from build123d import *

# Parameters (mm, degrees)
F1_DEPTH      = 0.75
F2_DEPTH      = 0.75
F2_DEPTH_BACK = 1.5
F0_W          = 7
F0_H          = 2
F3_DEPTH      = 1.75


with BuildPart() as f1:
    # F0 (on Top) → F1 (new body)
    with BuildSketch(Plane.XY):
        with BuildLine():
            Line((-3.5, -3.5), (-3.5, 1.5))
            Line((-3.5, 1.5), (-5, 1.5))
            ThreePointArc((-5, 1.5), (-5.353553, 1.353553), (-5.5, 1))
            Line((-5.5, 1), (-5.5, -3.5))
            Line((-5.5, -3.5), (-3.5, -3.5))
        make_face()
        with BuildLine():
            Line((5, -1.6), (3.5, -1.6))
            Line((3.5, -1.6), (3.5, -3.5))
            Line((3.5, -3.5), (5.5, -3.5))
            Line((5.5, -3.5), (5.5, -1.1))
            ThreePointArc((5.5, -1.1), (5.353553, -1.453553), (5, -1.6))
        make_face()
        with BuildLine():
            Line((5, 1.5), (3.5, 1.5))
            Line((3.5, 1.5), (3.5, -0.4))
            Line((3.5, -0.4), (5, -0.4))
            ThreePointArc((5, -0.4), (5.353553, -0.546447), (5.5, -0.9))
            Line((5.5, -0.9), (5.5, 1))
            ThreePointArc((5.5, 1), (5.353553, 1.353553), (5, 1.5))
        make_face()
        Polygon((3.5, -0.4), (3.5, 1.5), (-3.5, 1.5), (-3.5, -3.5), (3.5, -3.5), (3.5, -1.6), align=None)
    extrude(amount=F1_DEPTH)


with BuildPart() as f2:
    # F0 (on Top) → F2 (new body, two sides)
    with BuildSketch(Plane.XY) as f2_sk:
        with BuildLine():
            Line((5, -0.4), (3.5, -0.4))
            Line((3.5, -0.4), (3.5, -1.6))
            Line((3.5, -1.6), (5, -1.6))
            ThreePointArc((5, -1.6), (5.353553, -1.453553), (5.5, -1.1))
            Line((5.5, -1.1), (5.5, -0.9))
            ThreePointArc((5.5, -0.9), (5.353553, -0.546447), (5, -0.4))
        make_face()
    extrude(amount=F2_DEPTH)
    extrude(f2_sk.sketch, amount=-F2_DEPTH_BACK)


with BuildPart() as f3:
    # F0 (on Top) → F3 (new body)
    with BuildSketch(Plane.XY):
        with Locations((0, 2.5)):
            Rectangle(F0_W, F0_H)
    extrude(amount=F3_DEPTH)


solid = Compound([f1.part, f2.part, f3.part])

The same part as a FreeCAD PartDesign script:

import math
import FreeCAD as App
import Part
import Sketcher
from FreeCAD import Vector

doc = App.newDocument("Part")
body = doc.addObject("PartDesign::Body", "Body")

# Sketch on XY plane
sketch1 = body.newObject("Sketcher::SketchObject", "Sketch")
sketch1.AttachmentSupport = (doc.getObject("XY_Plane"), [""])
sketch1.MapMode = "FlatFace"
sketch1.addGeometry([
    Part.ArcOfCircle(Part.Circle(Vector(-5, 1, 0), Vector(0, 0, 1), 0.5), math.radians(90), math.radians(180)),  # 0
    Part.LineSegment(Vector(-5.5, 1, 0), Vector(-5.5, -3.5, 0)),  # 1
    Part.LineSegment(Vector(-5.5, -3.5, 0), Vector(5.5, -3.5, 0)),  # 2
    Part.LineSegment(Vector(5.5, -3.5, 0), Vector(5.5, -1.1, 0)),  # 3
    Part.ArcOfCircle(Part.Circle(Vector(5, -1.1, 0), Vector(0, 0, 1), 0.5), math.radians(-90), math.radians(0)),  # 4
    Part.LineSegment(Vector(5, -1.6, 0), Vector(3.5, -1.6, 0)),  # 5
    Part.LineSegment(Vector(3.5, -1.6, 0), Vector(3.5, -0.4, 0)),  # 6
    Part.LineSegment(Vector(3.5, -0.4, 0), Vector(5, -0.4, 0)),  # 7
    Part.ArcOfCircle(Part.Circle(Vector(5, -0.9, 0), Vector(0, 0, 1), 0.5), math.radians(0), math.radians(90)),  # 8
    Part.LineSegment(Vector(5.5, -0.9, 0), Vector(5.5, 1, 0)),  # 9
    Part.ArcOfCircle(Part.Circle(Vector(5, 1, 0), Vector(0, 0, 1), 0.5), math.radians(0), math.radians(90)),  # 10
    Part.LineSegment(Vector(5, 1.5, 0), Vector(-5, 1.5, 0)),  # 11
], False)
sketch1.addConstraint([
    Sketcher.Constraint("Coincident", 0, 2, 1, 1),
    Sketcher.Constraint("Coincident", 1, 2, 2, 1),
    Sketcher.Constraint("Coincident", 2, 2, 3, 1),
    Sketcher.Constraint("Coincident", 3, 2, 4, 2),
    Sketcher.Constraint("Coincident", 4, 1, 5, 1),
    Sketcher.Constraint("Coincident", 5, 2, 6, 1),
    Sketcher.Constraint("Coincident", 6, 2, 7, 1),
    Sketcher.Constraint("Coincident", 7, 2, 8, 2),
    Sketcher.Constraint("Coincident", 8, 1, 9, 1),
    Sketcher.Constraint("Coincident", 9, 2, 10, 1),
    Sketcher.Constraint("Coincident", 10, 2, 11, 1),
    Sketcher.Constraint("Coincident", 11, 2, 0, 1),
    Sketcher.Constraint("Vertical", 1),
    Sketcher.Constraint("Horizontal", 2),
    Sketcher.Constraint("Vertical", 3),
    Sketcher.Constraint("Horizontal", 5),
    Sketcher.Constraint("Vertical", 6),
    Sketcher.Constraint("Horizontal", 7),
    Sketcher.Constraint("Vertical", 9),
    Sketcher.Constraint("Horizontal", 11),
    Sketcher.Constraint("Equal", 0, 4),
    Sketcher.Constraint("Equal", 4, 8),
    Sketcher.Constraint("Equal", 8, 10),
    Sketcher.Constraint("Symmetric", 0, 2, 9, 2, -2),
    Sketcher.Constraint("Horizontal", 10, 3, 0, 2),
    Sketcher.Constraint("Horizontal", 4, 3, 3, 2),
    Sketcher.Constraint("Vertical", 4, 3, 8, 3),
    Sketcher.Constraint("Vertical", 10, 3, 4, 1),
    Sketcher.Constraint("Vertical", 4, 1, 7, 2),
    Sketcher.Constraint("Vertical", 7, 2, 10, 2),
    Sketcher.Constraint("Vertical", 0, 3, 11, 2),
    Sketcher.Constraint("Radius", 0, 0.500001),
    Sketcher.Constraint("DistanceX", 2, 1, 2, 2, 11.0),
    Sketcher.Constraint("DistanceX", 5, 2, 5, 1, 1.5),
    Sketcher.Constraint("DistanceY", 1, 2, 1, 1, 4.5),
    Sketcher.Constraint("DistanceY", 3, 1, 3, 2, 2.4),
    Sketcher.Constraint("DistanceY", 6, 1, 6, 2, 1.2),
    Sketcher.Constraint("DistanceY", 9, 1, 9, 2, 1.9),
    Sketcher.Constraint("DistanceY", -1, 1, 0, 3, 0.999999),
])
pad1 = body.newObject("PartDesign::Pad", "Pad")
pad1.Profile = sketch1
pad1.Length = 0.75
body2 = doc.addObject("PartDesign::Body", "Body001")

# Sketch on XY plane
sketch2 = body2.newObject("Sketcher::SketchObject", "Sketch001")
sketch2.AttachmentSupport = (doc.getObject("XY_Plane001"), [""])
sketch2.MapMode = "FlatFace"
sketch2.addGeometry([
    Part.LineSegment(Vector(5, -0.4, 0), Vector(3.5, -0.4, 0)),  # 0
    Part.LineSegment(Vector(3.5, -0.4, 0), Vector(3.5, -1.6, 0)),  # 1
    Part.LineSegment(Vector(3.5, -1.6, 0), Vector(5, -1.6, 0)),  # 2
    Part.ArcOfCircle(Part.Circle(Vector(5, -1.1, 0), Vector(0, 0, 1), 0.5), math.radians(-90), math.radians(0)),  # 3
    Part.LineSegment(Vector(5.5, -1.1, 0), Vector(5.5, -0.9, 0)),  # 4
    Part.ArcOfCircle(Part.Circle(Vector(5, -0.9, 0), Vector(0, 0, 1), 0.5), math.radians(0), math.radians(90)),  # 5
], False)
sketch2.addConstraint([
    Sketcher.Constraint("Coincident", 0, 2, 1, 1),
    Sketcher.Constraint("Coincident", 1, 2, 2, 1),
    Sketcher.Constraint("Coincident", 2, 2, 3, 1),
    Sketcher.Constraint("Coincident", 3, 2, 4, 1),
    Sketcher.Constraint("Coincident", 4, 2, 5, 1),
    Sketcher.Constraint("Coincident", 5, 2, 0, 1),
    Sketcher.Constraint("Horizontal", 0),
    Sketcher.Constraint("Vertical", 1),
    Sketcher.Constraint("Horizontal", 2),
    Sketcher.Constraint("Vertical", 4),
    Sketcher.Constraint("Equal", 3, 5),
    Sketcher.Constraint("Horizontal", 5, 3, 4, 2),
    Sketcher.Constraint("Vertical", 5, 3, 2, 2),
    Sketcher.Constraint("Vertical", 2, 2, 5, 2),
    Sketcher.Constraint("Radius", 3, 0.500001),
    Sketcher.Constraint("DistanceX", 0, 2, 0, 1, 1.5),
    Sketcher.Constraint("DistanceY", 1, 2, 1, 1, 1.2),
    Sketcher.Constraint("DistanceY", 4, 1, 4, 2, 0.2),
    Sketcher.Constraint("DistanceX", -1, 1, 3, 3, 4.999999),
    Sketcher.Constraint("DistanceY", 3, 3, -1, 1, 1.099999),
])
pad2 = body2.newObject("PartDesign::Pad", "Pad001")
pad2.Profile = sketch2
pad2.Type = "TwoLengths"
pad2.Length = 0.75
pad2.Length2 = 1.5
body3 = doc.addObject("PartDesign::Body", "Body002")

# Sketch on XY plane
sketch3 = body3.newObject("Sketcher::SketchObject", "Sketch002")
sketch3.AttachmentSupport = (doc.getObject("XY_Plane002"), [""])
sketch3.MapMode = "FlatFace"
sketch3.addGeometry([
    Part.LineSegment(Vector(-3.5, 3.5, 0), Vector(-3.5, 1.5, 0)),
    Part.LineSegment(Vector(-3.5, 1.5, 0), Vector(3.5, 1.5, 0)),
    Part.LineSegment(Vector(3.5, 1.5, 0), Vector(3.5, 3.5, 0)),
    Part.LineSegment(Vector(3.5, 3.5, 0), Vector(-3.5, 3.5, 0)),
], False)
sketch3.addConstraint([
    Sketcher.Constraint("Coincident", 0, 2, 1, 1),
    Sketcher.Constraint("Coincident", 1, 2, 2, 1),
    Sketcher.Constraint("Coincident", 2, 2, 3, 1),
    Sketcher.Constraint("Coincident", 3, 2, 0, 1),
    Sketcher.Constraint("Vertical", 0),
    Sketcher.Constraint("Horizontal", 1),
    Sketcher.Constraint("Vertical", 2),
    Sketcher.Constraint("Horizontal", 3),
    Sketcher.Constraint("DistanceX", 1, 1, 1, 2, 7.0),
    Sketcher.Constraint("DistanceY", 0, 2, 0, 1, 2.0),
    Sketcher.Constraint("DistanceX", 0, 2, -1, 1, 3.5),
    Sketcher.Constraint("DistanceY", -1, 1, 0, 2, 1.5),
])
pad3 = body3.newObject("PartDesign::Pad", "Pad002")
pad3.Profile = sketch3
pad3.Length = 1.75

doc.recompute()
